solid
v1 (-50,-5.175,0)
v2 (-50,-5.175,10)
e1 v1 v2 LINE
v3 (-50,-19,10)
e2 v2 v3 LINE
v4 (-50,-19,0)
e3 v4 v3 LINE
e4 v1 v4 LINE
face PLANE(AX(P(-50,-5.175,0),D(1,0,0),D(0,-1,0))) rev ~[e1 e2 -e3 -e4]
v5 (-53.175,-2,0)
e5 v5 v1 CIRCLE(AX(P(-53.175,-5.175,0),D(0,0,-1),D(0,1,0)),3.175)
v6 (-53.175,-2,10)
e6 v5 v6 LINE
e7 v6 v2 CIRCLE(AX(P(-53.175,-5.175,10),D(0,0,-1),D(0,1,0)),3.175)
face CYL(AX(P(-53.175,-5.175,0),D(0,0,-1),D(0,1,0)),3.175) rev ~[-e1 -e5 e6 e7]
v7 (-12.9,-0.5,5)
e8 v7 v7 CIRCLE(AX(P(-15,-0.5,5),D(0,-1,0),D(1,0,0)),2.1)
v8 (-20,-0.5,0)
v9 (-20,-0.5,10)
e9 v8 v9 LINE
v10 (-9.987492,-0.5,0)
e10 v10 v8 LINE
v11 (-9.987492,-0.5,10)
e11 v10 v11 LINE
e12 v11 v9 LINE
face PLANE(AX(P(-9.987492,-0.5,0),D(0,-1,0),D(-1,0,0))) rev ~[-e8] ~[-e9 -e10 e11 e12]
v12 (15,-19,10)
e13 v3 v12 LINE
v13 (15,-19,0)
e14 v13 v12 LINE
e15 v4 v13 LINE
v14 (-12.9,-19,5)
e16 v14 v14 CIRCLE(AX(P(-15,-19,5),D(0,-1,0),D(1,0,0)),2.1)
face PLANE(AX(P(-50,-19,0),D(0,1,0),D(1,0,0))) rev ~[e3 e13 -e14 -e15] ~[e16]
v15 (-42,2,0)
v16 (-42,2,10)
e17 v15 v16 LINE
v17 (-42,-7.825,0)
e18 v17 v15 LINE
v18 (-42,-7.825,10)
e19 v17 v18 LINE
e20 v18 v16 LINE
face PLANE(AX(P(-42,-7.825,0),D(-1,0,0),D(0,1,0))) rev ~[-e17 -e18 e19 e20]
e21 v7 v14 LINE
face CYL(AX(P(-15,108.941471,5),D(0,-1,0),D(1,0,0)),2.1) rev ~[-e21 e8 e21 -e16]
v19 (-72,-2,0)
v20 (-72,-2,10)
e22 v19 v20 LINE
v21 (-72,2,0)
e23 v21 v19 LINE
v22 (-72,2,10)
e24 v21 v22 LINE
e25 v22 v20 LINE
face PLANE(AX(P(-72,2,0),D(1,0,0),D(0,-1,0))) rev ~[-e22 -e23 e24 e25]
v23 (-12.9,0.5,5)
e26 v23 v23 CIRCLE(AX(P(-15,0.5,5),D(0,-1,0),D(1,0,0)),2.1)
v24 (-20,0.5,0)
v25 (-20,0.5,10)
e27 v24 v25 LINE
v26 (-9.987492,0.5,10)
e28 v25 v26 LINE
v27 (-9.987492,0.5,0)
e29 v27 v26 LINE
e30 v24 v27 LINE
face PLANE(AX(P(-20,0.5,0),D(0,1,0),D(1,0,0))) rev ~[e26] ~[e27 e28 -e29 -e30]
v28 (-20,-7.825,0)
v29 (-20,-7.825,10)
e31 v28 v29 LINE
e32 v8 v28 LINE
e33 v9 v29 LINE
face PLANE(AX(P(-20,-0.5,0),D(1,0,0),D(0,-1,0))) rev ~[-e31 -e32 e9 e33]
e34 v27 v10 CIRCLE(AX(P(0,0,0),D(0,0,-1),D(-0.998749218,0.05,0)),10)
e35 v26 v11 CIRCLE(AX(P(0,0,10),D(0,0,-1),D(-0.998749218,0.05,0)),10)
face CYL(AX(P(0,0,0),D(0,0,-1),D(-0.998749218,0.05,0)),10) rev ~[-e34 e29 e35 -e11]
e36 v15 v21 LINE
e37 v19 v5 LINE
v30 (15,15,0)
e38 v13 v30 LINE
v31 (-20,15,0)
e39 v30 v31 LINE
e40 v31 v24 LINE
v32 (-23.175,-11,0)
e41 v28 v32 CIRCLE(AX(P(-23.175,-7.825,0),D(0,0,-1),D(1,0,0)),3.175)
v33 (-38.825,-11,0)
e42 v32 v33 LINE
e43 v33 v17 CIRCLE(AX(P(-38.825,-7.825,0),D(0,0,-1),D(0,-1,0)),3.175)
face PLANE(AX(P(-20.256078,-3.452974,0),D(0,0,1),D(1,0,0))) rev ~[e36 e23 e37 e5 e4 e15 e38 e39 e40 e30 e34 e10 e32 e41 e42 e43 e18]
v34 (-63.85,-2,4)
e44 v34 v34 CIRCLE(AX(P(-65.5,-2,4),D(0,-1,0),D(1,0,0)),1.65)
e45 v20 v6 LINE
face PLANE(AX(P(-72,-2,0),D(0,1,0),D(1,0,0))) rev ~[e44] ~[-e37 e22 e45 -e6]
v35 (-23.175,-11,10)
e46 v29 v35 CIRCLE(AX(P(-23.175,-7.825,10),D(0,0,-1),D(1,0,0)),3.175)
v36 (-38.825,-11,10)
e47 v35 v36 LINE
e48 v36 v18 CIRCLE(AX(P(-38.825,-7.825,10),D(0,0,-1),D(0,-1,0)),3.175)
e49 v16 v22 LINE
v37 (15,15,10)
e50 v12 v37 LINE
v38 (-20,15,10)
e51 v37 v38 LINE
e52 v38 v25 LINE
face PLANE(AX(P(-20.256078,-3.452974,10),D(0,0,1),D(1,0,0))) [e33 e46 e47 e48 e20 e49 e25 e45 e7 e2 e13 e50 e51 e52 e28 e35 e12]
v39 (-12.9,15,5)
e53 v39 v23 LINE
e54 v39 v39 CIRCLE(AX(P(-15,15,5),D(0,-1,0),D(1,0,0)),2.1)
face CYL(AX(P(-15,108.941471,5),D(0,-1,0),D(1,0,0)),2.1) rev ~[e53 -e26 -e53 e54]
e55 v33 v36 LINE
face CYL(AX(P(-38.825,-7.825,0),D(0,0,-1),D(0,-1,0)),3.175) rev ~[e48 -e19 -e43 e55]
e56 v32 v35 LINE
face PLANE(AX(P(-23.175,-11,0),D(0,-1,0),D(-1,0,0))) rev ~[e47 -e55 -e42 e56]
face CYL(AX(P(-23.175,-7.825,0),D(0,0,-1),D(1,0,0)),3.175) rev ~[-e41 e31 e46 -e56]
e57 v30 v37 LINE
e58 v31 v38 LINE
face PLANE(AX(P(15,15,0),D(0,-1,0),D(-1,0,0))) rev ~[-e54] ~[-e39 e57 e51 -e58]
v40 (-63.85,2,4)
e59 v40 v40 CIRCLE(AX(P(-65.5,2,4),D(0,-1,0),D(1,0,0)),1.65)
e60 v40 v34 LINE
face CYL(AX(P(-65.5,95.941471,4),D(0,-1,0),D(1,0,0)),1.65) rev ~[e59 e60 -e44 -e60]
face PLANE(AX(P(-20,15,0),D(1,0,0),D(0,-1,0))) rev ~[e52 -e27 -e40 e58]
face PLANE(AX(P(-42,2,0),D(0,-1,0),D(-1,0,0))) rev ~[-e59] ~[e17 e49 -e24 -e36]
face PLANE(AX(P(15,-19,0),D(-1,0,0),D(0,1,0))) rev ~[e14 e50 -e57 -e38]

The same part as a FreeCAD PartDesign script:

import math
import FreeCAD as App
import Part
import Sketcher
from FreeCAD import Vector
Q = App.Units.Quantity

doc = App.newDocument("Part")
body = doc.addObject("PartDesign::Body", "Body")

# Sketch on XY plane
sketch1 = body.newObject("Sketcher::SketchObject", "Sketch")
sketch1.AttachmentSupport = (doc.getObject("XY_Plane"), [""])
sketch1.MapMode = "FlatFace"
sketch1.addGeometry(Part.ArcOfCircle(Part.Circle(Vector(0, 0, 0), Vector(0, 0, 1), 10), math.radians(-177), math.radians(177)), False)
sketch1.addGeometry(Part.LineSegment(Vector(-10, -0.5, 0), Vector(-20, -0.5, 0)), False)
sketch1.addGeometry(Part.LineSegment(Vector(-20, -0.5, 0), Vector(-20, -7.8, 0)), False)
sketch1.addGeometry(Part.ArcOfCircle(Part.Circle(Vector(-23.2, -7.8, 0), Vector(0, 0, 1), 3.2), math.radians(-90), math.radians(0)), False)
sketch1.addGeometry(Part.LineSegment(Vector(-23.2, -11, 0), Vector(-38.8, -11, 0)), False)
sketch1.addGeometry(Part.ArcOfCircle(Part.Circle(Vector(-38.8, -7.8, 0), Vector(0, 0, 1), 3.2), math.radians(180), math.radians(270)), False)
sketch1.addGeometry(Part.LineSegment(Vector(-42, -7.8, 0), Vector(-42, 2, 0)), False)
sketch1.addGeometry(Part.LineSegment(Vector(-42, 2, 0), Vector(-72, 2, 0)), False)
sketch1.addGeometry(Part.LineSegment(Vector(-72, 2, 0), Vector(-72, -2, 0)), False)
sketch1.addGeometry(Part.LineSegment(Vector(-72, -2, 0), Vector(-53.2, -2, 0)), False)
sketch1.addGeometry(Part.ArcOfCircle(Part.Circle(Vector(-53.2, -5.2, 0), Vector(0, 0, 1), 3.2), math.radians(0), math.radians(90)), False)
sketch1.addGeometry(Part.LineSegment(Vector(-50, -5.2, 0), Vector(-50, -19, 0)), False)
sketch1.addGeometry(Part.LineSegment(Vector(-50, -19, 0), Vector(15, -19, 0)), False)
sketch1.addGeometry(Part.LineSegment(Vector(15, -19, 0), Vector(15, 15, 0)), False)
sketch1.addGeometry(Part.LineSegment(Vector(15, 15, 0), Vector(-20, 15, 0)), False)
sketch1.addGeometry(Part.LineSegment(Vector(-20, 15, 0), Vector(-20, 0.5, 0)), False)
sketch1.addGeometry(Part.LineSegment(Vector(-20, 0.5, 0), Vector(-10, 0.5, 0)), False)
sketch1.addConstraint(Sketcher.Constraint("Coincident", 0, 1, 1, 1))
sketch1.addConstraint(Sketcher.Constraint("Coincident", 1, 2, 2, 1))
sketch1.addConstraint(Sketcher.Constraint("Tangent", 2, 2, 3, 2))
sketch1.addConstraint(Sketcher.Constraint("Tangent", 3, 1, 4, 1))
sketch1.addConstraint(Sketcher.Constraint("Tangent", 4, 2, 5, 2))
sketch1.addConstraint(Sketcher.Constraint("Tangent", 5, 1, 6, 1))
sketch1.addConstraint(Sketcher.Constraint("Coincident", 6, 2, 7, 1))
sketch1.addConstraint(Sketcher.Constraint("Coincident", 7, 2, 8, 1))
sketch1.addConstraint(Sketcher.Constraint("Coincident", 8, 2, 9, 1))
sketch1.addConstraint(Sketcher.Constraint("Tangent", 9, 2, 10, 2))
sketch1.addConstraint(Sketcher.Constraint("Tangent", 10, 1, 11, 1))
sketch1.addConstraint(Sketcher.Constraint("Coincident", 11, 2, 12, 1))
sketch1.addConstraint(Sketcher.Constraint("Coincident", 12, 2, 13, 1))
sketch1.addConstraint(Sketcher.Constraint("Coincident", 13, 2, 14, 1))
sketch1.addConstraint(Sketcher.Constraint("Coincident", 14, 2, 15, 1))
sketch1.addConstraint(Sketcher.Constraint("Coincident", 15, 2, 16, 1))
sketch1.addConstraint(Sketcher.Constraint("Coincident", 16, 2, 0, 2))
sketch1.addConstraint(Sketcher.Constraint("Horizontal", 1))
sketch1.addConstraint(Sketcher.Constraint("Vertical", 2))
sketch1.addConstraint(Sketcher.Constraint("Horizontal", 4))
sketch1.addConstraint(Sketcher.Constraint("Vertical", 6))
sketch1.addConstraint(Sketcher.Constraint("Horizontal", 7))
sketch1.addConstraint(Sketcher.Constraint("Vertical", 8))
sketch1.addConstraint(Sketcher.Constraint("Horizontal", 9))
sketch1.addConstraint(Sketcher.Constraint("Vertical", 11))
sketch1.addConstraint(Sketcher.Constraint("Horizontal", 12))
sketch1.addConstraint(Sketcher.Constraint("Vertical", 13))
sketch1.addConstraint(Sketcher.Constraint("Horizontal", 14))
sketch1.addConstraint(Sketcher.Constraint("Vertical", 15))
sketch1.addConstraint(Sketcher.Constraint("Horizontal", 16))
sketch1.addConstraint(Sketcher.Constraint("Coincident", 0, 3, -1, 1))
sketch1.addConstraint(Sketcher.Constraint("Equal", 3, 5))
sketch1.addConstraint(Sketcher.Constraint("Equal", 5, 10))
sketch1.addConstraint(Sketcher.Constraint("Symmetric", 1, 2, 15, 2, -1))
sketch1.addConstraint(Sketcher.Constraint("Radius", 0, Q("10 mm")))
sketch1.addConstraint(Sketcher.Constraint("DistanceX", 7, 2, 7, 1, Q("30 mm")))
sketch1.addConstraint(Sketcher.Constraint("DistanceX", 12, 1, 12, 2, Q("65 mm")))
sketch1.addConstraint(Sketcher.Constraint("DistanceX", 14, 2, 14, 1, Q("35 mm")))
sketch1.addConstraint(Sketcher.Constraint("DistanceY", 8, 2, 8, 1, Q("4 mm")))
sketch1.addConstraint(Sketcher.Constraint("DistanceY", 13, 1, 13, 2, Q("34 mm")))
sketch1.addConstraint(Sketcher.Constraint("DistanceY", 15, 2, 15, 1, Q("14.5 mm")))
sketch1.addConstraint(Sketcher.Constraint("DistanceX", 1, 2, -1, 1, Q("20 mm")))
sketch1.addConstraint(Sketcher.Constraint("DistanceY", 3, 1, -1, 1, Q("11 mm")))
sketch1.addConstraint(Sketcher.Constraint("DistanceX", 5, 1, -1, 1, Q("42 mm")))
sketch1.addConstraint(Sketcher.Constraint("DistanceY", -1, 1, 6, 2, Q("2 mm")))
sketch1.addConstraint(Sketcher.Constraint("DistanceY", 11, 2, -1, 1, Q("19 mm")))
sketch1.addConstraint(Sketcher.Constraint("Radius", 3, Q("3.175 mm")))
pad1 = body.newObject("PartDesign::Pad", "Pad")
pad1.Profile = sketch1
pad1.Length = 10

# Sketch on XZ plane
sketch2 = body.newObject("Sketcher::SketchObject", "Sketch001")
sketch2.AttachmentSupport = (doc.getObject("XZ_Plane"), [""])
sketch2.MapMode = "FlatFace"
sketch2.AttachmentOffset = App.Placement(Vector(0, 0, -15), App.Rotation())
sketch2.addGeometry(Part.Circle(Vector(-15, 5, 0), Vector(0, 0, 1), 2.1), False)
sketch2.addConstraint(Sketcher.Constraint("Diameter", 0, Q("4.2 mm")))
sketch2.addConstraint(Sketcher.Constraint("DistanceX", 0, 3, -1, 1, Q("15 mm")))
sketch2.addConstraint(Sketcher.Constraint("DistanceY", -1, 1, 0, 3, Q("5 mm")))
doc.recompute()
hole = body.newObject("PartDesign::Hole", "Hole")
hole.Profile = sketch2
hole.ThreadType = "None"
hole.Diameter = 4.2
hole.DepthType = "ThroughAll"
hole.Reversed = True

# Sketch on XZ plane
sketch3 = body.newObject("Sketcher::SketchObject", "Sketch002")
sketch3.AttachmentSupport = (doc.getObject("XZ_Plane"), [""])
sketch3.MapMode = "FlatFace"
sketch3.AttachmentOffset = App.Placement(Vector(0, 0, -2), App.Rotation())
sketch3.addGeometry(Part.Circle(Vector(-65.5, 4, 0), Vector(0, 0, 1), 1.6), False)
sketch3.addConstraint(Sketcher.Constraint("Diameter", 0, Q("3.3 mm")))
sketch3.addConstraint(Sketcher.Constraint("DistanceY", -1, 1, 0, 3, Q("4 mm")))
sketch3.addConstraint(Sketcher.Constraint("DistanceX", 0, 3, -1, 1, Q("65.5 mm")))
doc.recompute()
hole2 = body.newObject("PartDesign::Hole", "Hole001")
hole2.Profile = sketch3
hole2.ThreadType = "None"
hole2.Diameter = 3.3
hole2.DepthType = "ThroughAll"
hole2.Reversed = True

doc.recompute()
